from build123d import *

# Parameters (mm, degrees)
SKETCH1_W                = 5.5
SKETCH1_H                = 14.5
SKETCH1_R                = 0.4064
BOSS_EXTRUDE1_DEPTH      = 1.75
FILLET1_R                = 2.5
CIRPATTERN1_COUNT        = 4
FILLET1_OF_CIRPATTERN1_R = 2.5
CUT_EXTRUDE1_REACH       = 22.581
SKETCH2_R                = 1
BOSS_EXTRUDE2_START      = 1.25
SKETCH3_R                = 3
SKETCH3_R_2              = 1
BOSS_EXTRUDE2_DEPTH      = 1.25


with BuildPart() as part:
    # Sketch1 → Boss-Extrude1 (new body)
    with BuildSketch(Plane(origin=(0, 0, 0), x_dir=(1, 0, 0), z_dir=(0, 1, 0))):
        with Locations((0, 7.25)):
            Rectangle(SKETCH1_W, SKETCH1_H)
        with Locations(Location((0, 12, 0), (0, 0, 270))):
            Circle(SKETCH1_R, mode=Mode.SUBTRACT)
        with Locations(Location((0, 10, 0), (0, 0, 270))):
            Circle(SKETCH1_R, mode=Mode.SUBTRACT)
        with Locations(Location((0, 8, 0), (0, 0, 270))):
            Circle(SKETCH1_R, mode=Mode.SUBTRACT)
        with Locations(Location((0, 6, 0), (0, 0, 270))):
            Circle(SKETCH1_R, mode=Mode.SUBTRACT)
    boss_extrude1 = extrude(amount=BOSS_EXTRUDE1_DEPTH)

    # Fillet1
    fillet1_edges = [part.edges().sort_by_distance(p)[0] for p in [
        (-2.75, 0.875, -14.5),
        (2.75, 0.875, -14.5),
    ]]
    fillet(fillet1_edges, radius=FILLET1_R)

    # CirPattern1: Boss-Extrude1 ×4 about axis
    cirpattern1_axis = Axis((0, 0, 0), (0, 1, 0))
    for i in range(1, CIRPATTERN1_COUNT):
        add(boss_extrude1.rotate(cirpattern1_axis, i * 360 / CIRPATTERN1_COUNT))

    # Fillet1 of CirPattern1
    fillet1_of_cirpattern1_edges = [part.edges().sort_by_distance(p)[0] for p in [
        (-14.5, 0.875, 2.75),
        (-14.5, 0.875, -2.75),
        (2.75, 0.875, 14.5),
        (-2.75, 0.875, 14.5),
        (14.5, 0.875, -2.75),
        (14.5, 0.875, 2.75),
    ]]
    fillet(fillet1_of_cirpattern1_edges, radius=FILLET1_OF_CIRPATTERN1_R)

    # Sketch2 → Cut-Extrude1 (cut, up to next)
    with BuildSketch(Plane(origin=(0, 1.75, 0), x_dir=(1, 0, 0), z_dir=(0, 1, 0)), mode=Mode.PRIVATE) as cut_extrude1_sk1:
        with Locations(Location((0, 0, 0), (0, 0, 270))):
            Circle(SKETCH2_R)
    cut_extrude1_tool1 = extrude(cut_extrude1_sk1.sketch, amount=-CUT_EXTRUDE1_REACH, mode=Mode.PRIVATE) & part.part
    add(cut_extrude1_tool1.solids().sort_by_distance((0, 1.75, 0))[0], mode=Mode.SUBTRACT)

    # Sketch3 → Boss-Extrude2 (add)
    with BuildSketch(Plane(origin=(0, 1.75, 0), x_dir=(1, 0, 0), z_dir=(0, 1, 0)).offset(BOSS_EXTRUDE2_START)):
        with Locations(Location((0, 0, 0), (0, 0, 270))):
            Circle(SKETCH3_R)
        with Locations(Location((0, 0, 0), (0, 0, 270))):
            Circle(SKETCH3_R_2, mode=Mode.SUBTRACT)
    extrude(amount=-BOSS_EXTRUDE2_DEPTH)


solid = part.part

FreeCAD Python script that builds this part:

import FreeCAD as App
import Part
import Sketcher

V = App.Vector


def edges_at(feature, points):
    """Names of the edges that pass closest to the given points."""
    edges = feature.Shape.Edges
    near = lambda p: min(range(len(edges)), key=lambda i: edges[i].distToShape(Part.Vertex(*p))[0])
    return sorted({f"Edge{near(p) + 1}" for p in points})


def add_polygon(sketch, points):
    """Adds a closed chain of lines whose ends are joined by coincident constraints."""
    first, n = sketch.GeometryCount, len(points)
    for a, b in zip(points, points[1:] + points[:1]):
        sketch.addGeometry(Part.LineSegment(App.Vector(*a, 0), App.Vector(*b, 0)), False)
    for i in range(n):
        sketch.addConstraint(Sketcher.Constraint("Coincident", first + i, 2, first + (i + 1) % n, 1))

doc = App.newDocument("Part")
params = doc.addObject("Spreadsheet::Sheet", "Params")
for row, (alias, value) in enumerate([
    ("sketch1_width", "5.5 mm"),
    ("sketch1_height", "14.5 mm"),
    ("pad1_length", "1.75 mm"),
    ("fillet_radius", "2.5 mm"),
    ("fillet2_radius", "2.5 mm"),
    ("sketch2_diameter", "2 mm"),
    ("sketch3_diameter", "6 mm"),
    ("sketch3_diameter2", "2 mm"),
    ("pad2_length", "1.25 mm"),
], start=1):
    params.set(f"A{row}", alias)
    params.set(f"B{row}", "=" + value)
    params.setAlias(f"B{row}", alias)

body = doc.addObject("PartDesign::Body", "Body")

# Sketch on XZ plane
sketch1 = doc.addObject("Sketcher::SketchObject", "Sketch")
body.addObject(sketch1)
sketch1.AttachmentSupport = (doc.XZ_Plane, [""])
sketch1.MapMode = "FlatFace"
add_polygon(sketch1, [(-2.75, -14.5), (-2.75, 0), (2.75, 0), (2.75, -14.5)])  # lines 0-3
sketch1.addGeometry(Part.Circle(V(0, -6, 0), V(0, 0, 1), 0.41), False)  # 4
sketch1.addGeometry(Part.Circle(V(0, -8, 0), V(0, 0, 1), 0.41), False)  # 5
sketch1.addGeometry(Part.Circle(V(0, -10, 0), V(0, 0, 1), 0.41), False)  # 6
sketch1.addGeometry(Part.Circle(V(0, -12, 0), V(0, 0, 1), 0.41), False)  # 7
sketch1.addConstraint([
    Sketcher.Constraint("Vertical", 0),
    Sketcher.Constraint("Horizontal", 1),
    Sketcher.Constraint("Vertical", 2),
    Sketcher.Constraint("Horizontal", 3),
    Sketcher.Constraint("Equal", 4, 5),
    Sketcher.Constraint("Equal", 5, 6),
    Sketcher.Constraint("Equal", 6, 7),
    Sketcher.Constraint("Symmetric", 0, 2, 1, 2, -1, 1),
    Sketcher.Constraint("PointOnObject", 4, 3, -2),
    Sketcher.Constraint("PointOnObject", 5, 3, -2),
    Sketcher.Constraint("PointOnObject", 6, 3, -2),
    Sketcher.Constraint("PointOnObject", 7, 3, -2),
    Sketcher.Constraint("DistanceX", 1, 1, 1, 2, 5.5),
    Sketcher.Constraint("DistanceY", 0, 1, 0, 2, 14.5),
    Sketcher.Constraint("DistanceY", 4, 3, -1, 1, 6.0),
    Sketcher.Constraint("DistanceY", 5, 3, -1, 1, 8.0),
    Sketcher.Constraint("DistanceY", 6, 3, -1, 1, 10.0),
    Sketcher.Constraint("DistanceY", 7, 3, -1, 1, 12.0),
    Sketcher.Constraint("Diameter", 4, 0.8128),
])
sketch1.setExpression("Constraints[16]", "Params.sketch1_width")
sketch1.setExpression("Constraints[17]", "Params.sketch1_height")
pad1 = doc.addObject("PartDesign::Pad", "Pad")
body.addObject(pad1)
pad1.Profile = sketch1
pad1.setExpression("Length", "Params.pad1_length")
pad1.Reversed = True
doc.recompute()

fillet = doc.addObject("PartDesign::Fillet", "Fillet")
body.addObject(fillet)
fillet.Base = (pad1, edges_at(pad1, [(-2.75, 0.875, -14.5), (2.75, 0.875, -14.5)]))
fillet.setExpression("Radius", "Params.fillet_radius")
doc.recompute()

polarpattern = doc.addObject("PartDesign::PolarPattern", "PolarPattern")
body.addObject(polarpattern)
polarpattern.Originals = [pad1]
polarpattern.Axis = (doc.Y_Axis, [""])
polarpattern.Angle = 360
polarpattern.Occurrences = 4
body.Tip = polarpattern
doc.recompute()

fillet2 = doc.addObject("PartDesign::Fillet", "Fillet001")
body.addObject(fillet2)
fillet2.Base = (polarpattern, edges_at(polarpattern, [
    (-14.5, 0.875, 2.75),
    (-14.5, 0.875, -2.75),
    (2.75, 0.875, 14.5),
    (-2.75, 0.875, 14.5),
    (14.5, 0.875, -2.75),
    (14.5, 0.875, 2.75),
]))
fillet2.setExpression("Radius", "Params.fillet2_radius")

# Sketch on XZ plane
sketch2 = doc.addObject("Sketcher::SketchObject", "Sketch001")
body.addObject(sketch2)
sketch2.AttachmentSupport = (doc.XZ_Plane, [""])
sketch2.MapMode = "FlatFace"
sketch2.AttachmentOffset = App.Placement(V(0, 0, -1.75), App.Rotation())
sketch2.addGeometry(Part.Circle(V(0, 0, 0), V(0, 0, 1), 1), False)
sketch2.addConstraint([
    Sketcher.Constraint("Coincident", 0, 3, -1, 1),
    Sketcher.Constraint("Diameter", 0, 2.0),
])
sketch2.setExpression("Constraints[1]", "Params.sketch2_diameter")
pocket1 = doc.addObject("PartDesign::Pocket", "Pocket")
body.addObject(pocket1)
pocket1.Profile = sketch2
pocket1.Type = "UpToFirst"
pocket1.Reversed = True

# Sketch on XZ plane
sketch3 = doc.addObject("Sketcher::SketchObject", "Sketch002")
body.addObject(sketch3)
sketch3.AttachmentSupport = (doc.XZ_Plane, [""])
sketch3.MapMode = "FlatFace"
sketch3.AttachmentOffset = App.Placement(V(0, 0, -3), App.Rotation())
sketch3.addGeometry([
    Part.Circle(V(0, 0, 0), V(0, 0, 1), 3),
    Part.Circle(V(0, 0, 0), V(0, 0, 1), 1),
], False)
sketch3.addConstraint([
    Sketcher.Constraint("Coincident", 0, 3, -1, 1),
    Sketcher.Constraint("Coincident", 1, 3, -1, 1),
    Sketcher.Constraint("Diameter", 0, 6.0),
    Sketcher.Constraint("Diameter", 1, 2.0),
])
sketch3.setExpression("Constraints[2]", "Params.sketch3_diameter")
sketch3.setExpression("Constraints[3]", "Params.sketch3_diameter2")
pad2 = doc.addObject("PartDesign::Pad", "Pad001")
body.addObject(pad2)
pad2.Profile = sketch3
pad2.setExpression("Length", "Params.pad2_length")

doc.recompute()
